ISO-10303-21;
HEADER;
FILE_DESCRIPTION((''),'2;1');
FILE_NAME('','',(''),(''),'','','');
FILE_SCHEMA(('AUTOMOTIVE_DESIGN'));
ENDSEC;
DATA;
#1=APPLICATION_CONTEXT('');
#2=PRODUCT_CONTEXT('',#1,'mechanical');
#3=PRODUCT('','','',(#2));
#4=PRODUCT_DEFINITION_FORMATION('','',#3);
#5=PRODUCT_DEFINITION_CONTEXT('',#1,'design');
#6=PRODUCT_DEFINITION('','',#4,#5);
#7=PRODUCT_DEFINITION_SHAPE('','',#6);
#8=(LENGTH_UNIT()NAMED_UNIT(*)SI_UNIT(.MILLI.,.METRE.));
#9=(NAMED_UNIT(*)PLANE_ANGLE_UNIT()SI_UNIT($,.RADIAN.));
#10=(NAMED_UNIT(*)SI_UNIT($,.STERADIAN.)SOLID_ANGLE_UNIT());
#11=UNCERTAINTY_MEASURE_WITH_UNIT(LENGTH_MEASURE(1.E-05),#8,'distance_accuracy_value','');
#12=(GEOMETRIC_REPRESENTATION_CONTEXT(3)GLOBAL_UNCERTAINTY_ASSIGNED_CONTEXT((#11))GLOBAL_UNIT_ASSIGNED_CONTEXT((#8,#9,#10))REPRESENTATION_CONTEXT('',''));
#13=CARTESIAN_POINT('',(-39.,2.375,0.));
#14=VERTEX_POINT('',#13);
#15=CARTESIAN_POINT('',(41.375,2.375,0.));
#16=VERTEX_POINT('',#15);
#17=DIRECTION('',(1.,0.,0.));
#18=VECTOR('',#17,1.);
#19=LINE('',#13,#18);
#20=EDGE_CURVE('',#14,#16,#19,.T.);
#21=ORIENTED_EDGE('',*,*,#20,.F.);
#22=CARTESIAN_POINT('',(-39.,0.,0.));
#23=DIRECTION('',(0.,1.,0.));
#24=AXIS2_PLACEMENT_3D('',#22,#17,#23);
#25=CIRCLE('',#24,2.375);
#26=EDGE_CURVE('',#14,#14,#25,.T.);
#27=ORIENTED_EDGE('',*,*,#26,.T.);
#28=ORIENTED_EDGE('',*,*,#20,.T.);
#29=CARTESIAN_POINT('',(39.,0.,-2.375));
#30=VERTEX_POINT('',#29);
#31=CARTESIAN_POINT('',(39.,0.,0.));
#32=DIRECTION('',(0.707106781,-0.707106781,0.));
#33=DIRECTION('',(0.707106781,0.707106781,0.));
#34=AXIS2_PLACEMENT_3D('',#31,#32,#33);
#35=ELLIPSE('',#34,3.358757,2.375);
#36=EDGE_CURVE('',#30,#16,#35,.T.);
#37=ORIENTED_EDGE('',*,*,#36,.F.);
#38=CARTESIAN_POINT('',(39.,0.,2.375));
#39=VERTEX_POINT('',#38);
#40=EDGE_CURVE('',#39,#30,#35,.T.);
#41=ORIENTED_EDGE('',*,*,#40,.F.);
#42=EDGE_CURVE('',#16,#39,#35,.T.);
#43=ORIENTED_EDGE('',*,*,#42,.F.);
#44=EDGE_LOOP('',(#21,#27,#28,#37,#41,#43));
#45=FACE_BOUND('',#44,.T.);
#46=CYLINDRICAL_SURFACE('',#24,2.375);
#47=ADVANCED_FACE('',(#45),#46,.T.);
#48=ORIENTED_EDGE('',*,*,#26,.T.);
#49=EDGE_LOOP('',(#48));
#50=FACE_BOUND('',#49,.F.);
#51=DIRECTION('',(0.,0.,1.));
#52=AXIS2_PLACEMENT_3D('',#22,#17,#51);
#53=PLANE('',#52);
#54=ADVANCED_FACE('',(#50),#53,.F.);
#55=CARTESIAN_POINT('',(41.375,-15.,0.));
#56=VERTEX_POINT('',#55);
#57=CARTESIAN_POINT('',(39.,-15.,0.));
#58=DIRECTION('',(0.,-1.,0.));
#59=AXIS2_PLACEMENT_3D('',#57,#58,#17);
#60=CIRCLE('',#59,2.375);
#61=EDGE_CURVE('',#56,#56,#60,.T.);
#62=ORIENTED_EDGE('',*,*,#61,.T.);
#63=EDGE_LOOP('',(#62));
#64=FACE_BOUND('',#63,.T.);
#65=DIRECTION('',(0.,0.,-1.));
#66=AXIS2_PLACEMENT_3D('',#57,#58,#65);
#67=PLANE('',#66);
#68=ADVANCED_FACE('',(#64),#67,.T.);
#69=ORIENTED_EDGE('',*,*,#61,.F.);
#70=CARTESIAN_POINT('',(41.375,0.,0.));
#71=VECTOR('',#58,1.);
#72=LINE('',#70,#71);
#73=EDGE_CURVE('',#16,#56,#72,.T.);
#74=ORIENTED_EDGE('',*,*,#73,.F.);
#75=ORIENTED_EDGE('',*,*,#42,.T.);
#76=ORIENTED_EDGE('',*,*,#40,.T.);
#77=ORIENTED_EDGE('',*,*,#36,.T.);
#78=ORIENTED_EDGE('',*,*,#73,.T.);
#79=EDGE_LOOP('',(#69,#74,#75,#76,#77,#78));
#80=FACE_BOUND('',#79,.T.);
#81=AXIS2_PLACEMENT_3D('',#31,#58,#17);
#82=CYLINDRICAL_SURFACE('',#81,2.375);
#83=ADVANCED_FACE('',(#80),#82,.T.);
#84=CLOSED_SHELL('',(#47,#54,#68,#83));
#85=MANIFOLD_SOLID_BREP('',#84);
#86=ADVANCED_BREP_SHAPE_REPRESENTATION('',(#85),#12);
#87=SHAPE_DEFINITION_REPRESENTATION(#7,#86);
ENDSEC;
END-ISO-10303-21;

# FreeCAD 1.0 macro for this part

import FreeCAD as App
import Part
import Sketcher

V = App.Vector

doc = App.newDocument("Part")
body = doc.addObject("PartDesign::Body", "Body")

# Sketch on YZ plane
sketch1 = body.newObject("Sketcher::SketchObject", "Sketch")
sketch1.AttachmentSupport = (doc.getObject("YZ_Plane"), [""])
sketch1.MapMode = "FlatFace"
sketch1.AttachmentOffset = App.Placement(V(0, 0, -39), App.Rotation())
sketch1.addGeometry(Part.Circle(V(0, 0, 0), V(0, 0, 1), 2.4), False)
sketch1.addConstraint(Sketcher.Constraint("Coincident", 0, 3, -1, 1))
sketch1.addConstraint(Sketcher.Constraint("Diameter", 0, 4.75))

# Sketch on XY plane
sketch2 = body.newObject("Sketcher::SketchObject", "Sketch001")
sketch2.AttachmentSupport = (doc.getObject("XY_Plane"), [""])
sketch2.MapMode = "FlatFace"
sketch2.addGeometry(Part.LineSegment(V(-39, 0, 0), V(39, 0, 0)), False)
sketch2.addGeometry(Part.LineSegment(V(39, 0, 0), V(39, -15, 0)), False)
sketch2.addConstraint(Sketcher.Constraint("Coincident", 0, 2, 1, 1))
sketch2.addConstraint(Sketcher.Constraint("Horizontal", 0))
sketch2.addConstraint(Sketcher.Constraint("Vertical", 1))
sketch2.addConstraint(Sketcher.Constraint("Symmetric", 0, 1, 0, 2, -1, 1))
sketch2.addConstraint(Sketcher.Constraint("DistanceX", 0, 1, 0, 2, 78.0))
sketch2.addConstraint(Sketcher.Constraint("DistanceY", 1, 2, 1, 1, 15.0))
doc.recompute()

additivepipe = body.newObject("PartDesign::AdditivePipe", "AdditivePipe")
additivepipe.Profile = sketch1
additivepipe.Spine = (sketch2, ["Edge1", "Edge2"])
additivepipe.Transition = "Right corner"

doc.recompute()
